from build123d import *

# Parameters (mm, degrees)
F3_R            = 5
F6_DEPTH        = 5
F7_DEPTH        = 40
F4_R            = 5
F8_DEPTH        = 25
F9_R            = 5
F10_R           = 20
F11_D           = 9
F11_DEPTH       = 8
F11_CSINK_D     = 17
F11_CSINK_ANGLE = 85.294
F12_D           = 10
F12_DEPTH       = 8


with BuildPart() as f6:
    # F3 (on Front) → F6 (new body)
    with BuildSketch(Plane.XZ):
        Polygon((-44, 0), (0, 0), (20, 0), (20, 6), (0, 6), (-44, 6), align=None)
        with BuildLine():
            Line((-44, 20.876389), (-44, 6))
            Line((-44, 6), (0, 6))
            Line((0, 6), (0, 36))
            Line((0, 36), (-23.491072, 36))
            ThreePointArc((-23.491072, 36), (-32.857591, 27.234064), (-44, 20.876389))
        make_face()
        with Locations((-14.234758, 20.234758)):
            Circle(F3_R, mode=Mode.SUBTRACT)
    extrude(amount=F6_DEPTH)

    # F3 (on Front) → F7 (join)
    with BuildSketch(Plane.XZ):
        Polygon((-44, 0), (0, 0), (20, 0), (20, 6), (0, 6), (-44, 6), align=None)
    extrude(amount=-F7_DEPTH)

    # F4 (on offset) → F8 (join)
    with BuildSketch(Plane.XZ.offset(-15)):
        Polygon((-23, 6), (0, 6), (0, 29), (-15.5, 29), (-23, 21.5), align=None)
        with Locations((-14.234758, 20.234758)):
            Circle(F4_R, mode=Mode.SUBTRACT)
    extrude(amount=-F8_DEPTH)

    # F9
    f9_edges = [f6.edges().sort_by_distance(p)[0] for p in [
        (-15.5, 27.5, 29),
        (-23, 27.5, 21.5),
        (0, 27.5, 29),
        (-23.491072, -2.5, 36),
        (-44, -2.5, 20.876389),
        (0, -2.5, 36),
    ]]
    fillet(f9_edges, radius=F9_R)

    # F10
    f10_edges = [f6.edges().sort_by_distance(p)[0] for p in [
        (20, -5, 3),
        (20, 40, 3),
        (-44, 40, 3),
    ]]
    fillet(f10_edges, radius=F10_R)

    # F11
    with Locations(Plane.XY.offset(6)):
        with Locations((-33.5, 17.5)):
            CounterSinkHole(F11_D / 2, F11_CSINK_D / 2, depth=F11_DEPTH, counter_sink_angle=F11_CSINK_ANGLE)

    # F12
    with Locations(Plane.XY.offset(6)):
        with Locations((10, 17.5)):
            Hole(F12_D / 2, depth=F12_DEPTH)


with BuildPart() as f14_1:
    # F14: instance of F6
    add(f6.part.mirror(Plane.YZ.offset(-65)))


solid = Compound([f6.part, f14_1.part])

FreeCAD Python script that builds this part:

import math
import FreeCAD as App
import Part
import Sketcher
Q = App.Units.Quantity


def edges_at(feature, points):
    """Names of the edges that pass closest to the given points."""
    edges = feature.Shape.Edges
    near = lambda p: min(range(len(edges)), key=lambda i: edges[i].distToShape(Part.Vertex(*p))[0])
    return sorted({f"Edge{near(p) + 1}" for p in points})


def add_polygon(sketch, points):
    """Adds a closed chain of lines whose ends are joined by coincident constraints."""
    first, n = sketch.GeometryCount, len(points)
    for a, b in zip(points, points[1:] + points[:1]):
        sketch.addGeometry(Part.LineSegment(App.Vector(*a, 0), App.Vector(*b, 0)), False)
    for i in range(n):
        sketch.addConstraint(Sketcher.Constraint("Coincident", first + i, 2, first + (i + 1) % n, 1))

doc = App.newDocument("Part")
body = doc.addObject("PartDesign::Body", "Body")

sketch1 = doc.addObject("Sketcher::SketchObject", "Sketch")
body.addObject(sketch1)
sketch1.AttachmentSupport = (doc.XZ_Plane, [""])
sketch1.MapMode = "FlatFace"
sketch1.addGeometry([
    Part.LineSegment(App.Vector(-44, 0, 0), App.Vector(20, 0, 0)),
    Part.LineSegment(App.Vector(20, 0, 0), App.Vector(20, 6, 0)),
    Part.LineSegment(App.Vector(20, 6, 0), App.Vector(0, 6, 0)),
    Part.LineSegment(App.Vector(0, 6, 0), App.Vector(0, 36, 0)),
    Part.LineSegment(App.Vector(0, 36, 0), App.Vector(-23, 36, 0)),
    Part.ArcOfCircle(Part.Circle(App.Vector(-66, 72, 0), App.Vector(0, 0, 1), 55), math.radians(-67), math.radians(-40)),
    Part.LineSegment(App.Vector(-44, 21, 0), App.Vector(-44, 0, 0)),
    Part.Circle(App.Vector(-14, 20, 0), App.Vector(0, 0, 1), 5),
], False)
sketch1.addConstraint([
    Sketcher.Constraint("Coincident", 0, 2, 1, 1),
    Sketcher.Constraint("Coincident", 1, 2, 2, 1),
    Sketcher.Constraint("Coincident", 2, 2, 3, 1),
    Sketcher.Constraint("Coincident", 3, 2, 4, 1),
    Sketcher.Constraint("Coincident", 4, 2, 5, 2),
    Sketcher.Constraint("Coincident", 5, 1, 6, 1),
    Sketcher.Constraint("Coincident", 6, 2, 0, 1),
    Sketcher.Constraint("Horizontal", 0),
    Sketcher.Constraint("Vertical", 1),
    Sketcher.Constraint("Horizontal", 2),
    Sketcher.Constraint("Vertical", 3),
    Sketcher.Constraint("Horizontal", 4),
    Sketcher.Constraint("Vertical", 6),
    Sketcher.Constraint("PointOnObject", 0, 2, -1),
    Sketcher.Constraint("PointOnObject", 2, 2, -2),
    Sketcher.Constraint("Diameter", 7, Q("10 mm")),
    Sketcher.Constraint("DistanceX", 0, 1, 0, 2, Q("64 mm")),
    Sketcher.Constraint("DistanceX", 2, 2, 2, 1, Q("20 mm")),
    Sketcher.Constraint("DistanceY", 1, 1, 1, 2, Q("6 mm")),
    Sketcher.Constraint("DistanceY", 3, 1, 3, 2, Q("30 mm")),
    Sketcher.Constraint("Radius", 5, Q("55.000018 mm")),
    Sketcher.Constraint("DistanceX", 4, 2, 4, 1, Q("23.491072 mm")),
    Sketcher.Constraint("DistanceY", 6, 2, 6, 1, Q("20.876389 mm")),
    Sketcher.Constraint("DistanceX", 5, 1, 7, 3, Q("29.765242 mm")),
    Sketcher.Constraint("DistanceY", 7, 3, 5, 1, Q("0.641631 mm")),
])
pad1 = doc.addObject("PartDesign::Pad", "Pad")
body.addObject(pad1)
pad1.Profile = sketch1
pad1.Length = 5

sketch2 = doc.addObject("Sketcher::SketchObject", "Sketch001")
body.addObject(sketch2)
sketch2.AttachmentSupport = (doc.XZ_Plane, [""])
sketch2.MapMode = "FlatFace"
add_polygon(sketch2, [(-44, 0), (20, 0), (20, 6), (-44, 6)])
sketch2.addConstraint([
    Sketcher.Constraint("Horizontal", 0),
    Sketcher.Constraint("Vertical", 1),
    Sketcher.Constraint("Horizontal", 2),
    Sketcher.Constraint("Vertical", 3),
    Sketcher.Constraint("PointOnObject", 0, 2, -1),
    Sketcher.Constraint("DistanceX", 0, 1, 0, 2, Q("64 mm")),
    Sketcher.Constraint("DistanceY", 1, 1, 1, 2, Q("6 mm")),
    Sketcher.Constraint("DistanceX", -1, 1, 0, 2, Q("20 mm")),
])
pad2 = doc.addObject("PartDesign::Pad", "Pad001")
body.addObject(pad2)
pad2.Profile = sketch2
pad2.Length = 40
pad2.Reversed = True

sketch3 = doc.addObject("Sketcher::SketchObject", "Sketch002")
body.addObject(sketch3)
sketch3.AttachmentSupport = (doc.XZ_Plane, [""])
sketch3.MapMode = "FlatFace"
sketch3.AttachmentOffset = App.Placement(App.Vector(0, 0, -15), App.Rotation())
add_polygon(sketch3, [(-23, 6), (0, 6), (0, 29), (-16, 29), (-23, 22)])
sketch3.addGeometry(Part.Circle(App.Vector(-14, 20, 0), App.Vector(0, 0, 1), 5), False)
sketch3.addConstraint([
    Sketcher.Constraint("Horizontal", 0),
    Sketcher.Constraint("Vertical", 1),
    Sketcher.Constraint("Horizontal", 2),
    Sketcher.Constraint("Vertical", 4),
    Sketcher.Constraint("PointOnObject", 0, 2, -2),
    Sketcher.Constraint("Equal", 0, 1),
    Sketcher.Constraint("Equal", 2, 4),
    Sketcher.Constraint("Diameter", 5, Q("10 mm")),
    Sketcher.Constraint("DistanceX", 0, 1, 0, 2, Q("23 mm")),
    Sketcher.Constraint("DistanceX", 2, 2, 2, 1, Q("15.5 mm")),
    Sketcher.Constraint("DistanceY", -1, 1, 0, 2, Q("6 mm")),
    Sketcher.Constraint("DistanceX", 5, 3, -1, 1, Q("14.234758 mm")),
    Sketcher.Constraint("DistanceY", -1, 1, 5, 3, Q("20.234758 mm")),
])
pad3 = doc.addObject("PartDesign::Pad", "Pad002")
body.addObject(pad3)
pad3.Profile = sketch3
pad3.Length = 25
pad3.Reversed = True
doc.recompute()

fillet = doc.addObject("PartDesign::Fillet", "Fillet")
body.addObject(fillet)
fillet.Base = (pad3, edges_at(pad3, [
    (-15.5, 27.5, 29),
    (-23, 27.5, 21.5),
    (0, 27.5, 29),
    (-23.491, -2.5, 36),
    (-44, -2.5, 20.876),
    (0, -2.5, 36),
]))
fillet.Radius = 5
doc.recompute()

fillet2 = doc.addObject("PartDesign::Fillet", "Fillet001")
body.addObject(fillet2)
fillet2.Base = (fillet, edges_at(fillet, [(20, -5, 3), (20, 40, 3), (-44, 40, 3)]))
fillet2.Radius = 20

sketch4 = doc.addObject("Sketcher::SketchObject", "Sketch003")
body.addObject(sketch4)
sketch4.AttachmentSupport = (doc.XY_Plane, [""])
sketch4.MapMode = "FlatFace"
sketch4.AttachmentOffset = App.Placement(App.Vector(0, 0, 6), App.Rotation())
sketch4.addGeometry(Part.Circle(App.Vector(-33.5, 17.5, 0), App.Vector(0, 0, 1), 4.5), False)
sketch4.addConstraint([
    Sketcher.Constraint("Diameter", 0, Q("9 mm")),
    Sketcher.Constraint("DistanceX", 0, 3, -1, 1, Q("33.5 mm")),
    Sketcher.Constraint("DistanceY", -1, 1, 0, 3, Q("17.5 mm")),
])
doc.recompute()
hole = doc.addObject("PartDesign::Hole", "Hole")
body.addObject(hole)
hole.Profile = sketch4
hole.ThreadType = "None"
hole.Diameter = 9
hole.DepthType = "Dimension"
hole.Depth = 8
hole.DrillPoint = "Flat"
hole.HoleCutType = "Countersink"
hole.HoleCutDiameter = 17
hole.HoleCutCountersinkAngle = 85.294

sketch5 = doc.addObject("Sketcher::SketchObject", "Sketch004")
body.addObject(sketch5)
sketch5.AttachmentSupport = (doc.XY_Plane, [""])
sketch5.MapMode = "FlatFace"
sketch5.AttachmentOffset = App.Placement(App.Vector(0, 0, 6), App.Rotation())
sketch5.addGeometry(Part.Circle(App.Vector(10, 18, 0), App.Vector(0, 0, 1), 5), False)
sketch5.addConstraint([
    Sketcher.Constraint("Diameter", 0, Q("10 mm")),
    Sketcher.Constraint("DistanceX", -1, 1, 0, 3, Q("10 mm")),
    Sketcher.Constraint("DistanceY", -1, 1, 0, 3, Q("17.5 mm")),
])
doc.recompute()
hole2 = doc.addObject("PartDesign::Hole", "Hole001")
body.addObject(hole2)
hole2.Profile = sketch5
hole2.ThreadType = "None"
hole2.Diameter = 10
hole2.DepthType = "Dimension"
hole2.Depth = 8
hole2.DrillPoint = "Flat"
body2 = doc.addObject("PartDesign::Body", "Body001")
doc.recompute()

mirroring = doc.addObject("Part::Mirroring", "Mirroring")
mirroring.Source = body
mirroring.Base = App.Vector(-65, 0, 0)
mirroring.Normal = App.Vector(1, 0, 0)
body2.BaseFeature = mirroring
doc.recompute()
mirroring.Visibility = False

doc.recompute()
